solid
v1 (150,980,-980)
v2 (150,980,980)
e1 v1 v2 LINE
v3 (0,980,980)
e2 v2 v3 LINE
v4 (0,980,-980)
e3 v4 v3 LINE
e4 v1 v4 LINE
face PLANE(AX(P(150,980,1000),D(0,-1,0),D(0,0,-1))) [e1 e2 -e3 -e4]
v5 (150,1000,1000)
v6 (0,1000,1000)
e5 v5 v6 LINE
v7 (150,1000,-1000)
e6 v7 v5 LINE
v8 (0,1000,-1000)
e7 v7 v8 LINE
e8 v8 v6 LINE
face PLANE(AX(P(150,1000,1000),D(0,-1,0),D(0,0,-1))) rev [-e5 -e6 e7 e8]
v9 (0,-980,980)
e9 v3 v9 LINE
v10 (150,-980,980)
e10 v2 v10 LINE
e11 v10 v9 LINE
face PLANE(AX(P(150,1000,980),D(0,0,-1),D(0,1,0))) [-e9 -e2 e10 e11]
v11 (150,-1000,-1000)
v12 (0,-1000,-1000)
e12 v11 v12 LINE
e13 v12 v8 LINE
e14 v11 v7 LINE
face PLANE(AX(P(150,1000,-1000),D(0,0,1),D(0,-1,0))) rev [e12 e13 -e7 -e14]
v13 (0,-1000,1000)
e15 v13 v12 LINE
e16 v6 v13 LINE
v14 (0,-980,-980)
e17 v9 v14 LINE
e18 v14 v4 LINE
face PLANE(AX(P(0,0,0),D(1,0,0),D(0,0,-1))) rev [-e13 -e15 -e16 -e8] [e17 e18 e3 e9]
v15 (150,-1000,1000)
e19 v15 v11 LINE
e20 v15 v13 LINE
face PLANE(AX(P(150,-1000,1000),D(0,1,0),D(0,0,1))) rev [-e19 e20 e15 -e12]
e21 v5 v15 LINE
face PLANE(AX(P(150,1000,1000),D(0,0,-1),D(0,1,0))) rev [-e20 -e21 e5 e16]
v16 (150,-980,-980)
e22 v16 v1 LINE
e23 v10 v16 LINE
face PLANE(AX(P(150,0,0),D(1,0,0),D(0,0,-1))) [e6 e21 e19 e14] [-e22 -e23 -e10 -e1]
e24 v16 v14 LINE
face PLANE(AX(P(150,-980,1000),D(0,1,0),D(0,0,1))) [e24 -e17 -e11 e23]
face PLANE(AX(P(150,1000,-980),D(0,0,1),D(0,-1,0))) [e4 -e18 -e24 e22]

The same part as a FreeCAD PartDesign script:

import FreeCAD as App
import Part
import Sketcher

V = App.Vector

doc = App.newDocument("Part")
body = doc.addObject("PartDesign::Body", "Body")

sketch1 = body.newObject("Sketcher::SketchObject", "Sketch")
sketch1.AttachmentSupport = (doc.getObject("YZ_Plane"), [""])
sketch1.MapMode = "FlatFace"
sketch1.addGeometry([
    Part.LineSegment(V(1000, 1000, 0), V(-1000, 1000, 0)),
    Part.LineSegment(V(-1000, 1000, 0), V(-1000, -1000, 0)),
    Part.LineSegment(V(-1000, -1000, 0), V(1000, -1000, 0)),
    Part.LineSegment(V(1000, -1000, 0), V(1000, 1000, 0)),
    Part.LineSegment(V(-980, -980, 0), V(-980, 980, 0)),
    Part.LineSegment(V(-980, 980, 0), V(980, 980, 0)),
    Part.LineSegment(V(980, 980, 0), V(980, -980, 0)),
    Part.LineSegment(V(980, -980, 0), V(-980, -980, 0)),
], False)
sketch1.addConstraint([
    Sketcher.Constraint("Coincident", 0, 2, 1, 1),
    Sketcher.Constraint("Coincident", 1, 2, 2, 1),
    Sketcher.Constraint("Coincident", 2, 2, 3, 1),
    Sketcher.Constraint("Coincident", 3, 2, 0, 1),
    Sketcher.Constraint("Coincident", 4, 2, 5, 1),
    Sketcher.Constraint("Coincident", 5, 2, 6, 1),
    Sketcher.Constraint("Coincident", 6, 2, 7, 1),
    Sketcher.Constraint("Coincident", 7, 2, 4, 1),
    Sketcher.Constraint("Horizontal", 0),
    Sketcher.Constraint("Vertical", 1),
    Sketcher.Constraint("Horizontal", 2),
    Sketcher.Constraint("Vertical", 3),
    Sketcher.Constraint("Vertical", 4),
    Sketcher.Constraint("Horizontal", 5),
    Sketcher.Constraint("Vertical", 6),
    Sketcher.Constraint("Horizontal", 7),
    Sketcher.Constraint("Symmetric", 0, 2, 2, 2, -1, 1),
    Sketcher.Constraint("Symmetric", 4, 2, 6, 2, -1, 1),
    Sketcher.Constraint("Equal", 2, 1),
    Sketcher.Constraint("Equal", 7, 4),
    Sketcher.Constraint("DistanceX", 0, 2, 0, 1, 2000.0),
    Sketcher.Constraint("DistanceX", 5, 1, 5, 2, 1960.0),
])
pad1 = body.newObject("PartDesign::Pad", "Pad")
pad1.Profile = sketch1
pad1.Length = 150

doc.recompute()
